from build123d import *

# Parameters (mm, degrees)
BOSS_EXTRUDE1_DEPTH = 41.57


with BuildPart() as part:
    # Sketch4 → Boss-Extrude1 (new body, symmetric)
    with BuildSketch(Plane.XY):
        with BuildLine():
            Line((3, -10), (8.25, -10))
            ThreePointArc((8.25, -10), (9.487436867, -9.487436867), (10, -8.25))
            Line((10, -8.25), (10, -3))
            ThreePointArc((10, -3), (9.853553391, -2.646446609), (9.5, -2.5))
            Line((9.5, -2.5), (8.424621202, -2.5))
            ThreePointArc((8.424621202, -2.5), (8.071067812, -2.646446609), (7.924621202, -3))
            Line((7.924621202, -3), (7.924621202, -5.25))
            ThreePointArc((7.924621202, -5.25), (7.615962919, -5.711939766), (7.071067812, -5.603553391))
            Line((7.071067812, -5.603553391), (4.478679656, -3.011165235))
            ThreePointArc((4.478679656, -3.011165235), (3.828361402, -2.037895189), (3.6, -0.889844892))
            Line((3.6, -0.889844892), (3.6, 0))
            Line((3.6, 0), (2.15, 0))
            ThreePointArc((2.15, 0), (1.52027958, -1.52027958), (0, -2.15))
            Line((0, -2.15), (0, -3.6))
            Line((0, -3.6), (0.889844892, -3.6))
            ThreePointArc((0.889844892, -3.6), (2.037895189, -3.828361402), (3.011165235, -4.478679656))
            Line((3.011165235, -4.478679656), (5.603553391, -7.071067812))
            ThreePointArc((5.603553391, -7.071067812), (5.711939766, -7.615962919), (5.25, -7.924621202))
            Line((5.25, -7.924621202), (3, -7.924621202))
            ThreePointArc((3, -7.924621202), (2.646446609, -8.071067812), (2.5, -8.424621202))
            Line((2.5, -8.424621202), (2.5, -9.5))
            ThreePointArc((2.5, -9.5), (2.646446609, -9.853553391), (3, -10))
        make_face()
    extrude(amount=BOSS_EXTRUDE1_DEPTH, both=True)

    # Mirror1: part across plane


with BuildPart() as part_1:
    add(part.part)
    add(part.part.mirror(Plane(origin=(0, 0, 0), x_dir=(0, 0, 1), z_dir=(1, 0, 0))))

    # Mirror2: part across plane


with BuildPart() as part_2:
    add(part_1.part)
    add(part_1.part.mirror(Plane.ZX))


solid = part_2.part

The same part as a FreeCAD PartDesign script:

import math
import FreeCAD as App
import Part
import Sketcher

V = App.Vector
Q = App.Units.Quantity

doc = App.newDocument("Part")
body = doc.addObject("PartDesign::Body", "Body")

sketch1 = doc.addObject("Sketcher::SketchObject", "Sketch")
body.addObject(sketch1)
sketch1.AttachmentSupport = (doc.XY_Plane, [""])
sketch1.MapMode = "FlatFace"
sketch1.addGeometry(Part.LineSegment(V(3, -10, 0), V(8.25, -10, 0)), False)
sketch1.addGeometry(Part.ArcOfCircle(Part.Circle(V(8.25, -8.25, 0), V(0, 0, 1), 1.75), math.radians(-90), math.radians(0)), False)
sketch1.addGeometry(Part.LineSegment(V(10, -8.25, 0), V(10, -3, 0)), False)
sketch1.addGeometry(Part.ArcOfCircle(Part.Circle(V(9.5, -3, 0), V(0, 0, 1), 0.5), math.radians(0), math.radians(90)), False)
sketch1.addGeometry(Part.LineSegment(V(9.5, -2.5, 0), V(8.42, -2.5, 0)), False)
sketch1.addGeometry(Part.ArcOfCircle(Part.Circle(V(8.42, -3, 0), V(0, 0, 1), 0.5), math.radians(90), math.radians(180)), False)
sketch1.addGeometry(Part.LineSegment(V(7.92, -3, 0), V(7.92, -5.25, 0)), False)
sketch1.addGeometry(Part.ArcOfCircle(Part.Circle(V(7.42, -5.25, 0), V(0, 0, 1), 0.5), math.radians(-135), math.radians(0)), False)
sketch1.addGeometry(Part.LineSegment(V(7.07, -5.6, 0), V(4.48, -3.01, 0)), False)
sketch1.addGeometry(Part.ArcOfCircle(Part.Circle(V(6.6, -0.89, 0), V(0, 0, 1), 3), math.radians(180), math.radians(225)), False)
sketch1.addGeometry(Part.LineSegment(V(3.6, -0.89, 0), V(3.6, 0, 0)), False)
sketch1.addGeometry(Part.LineSegment(V(3.6, 0, 0), V(2.15, 0, 0)), False)
sketch1.addGeometry(Part.ArcOfCircle(Part.Circle(V(0, 0, 0), V(0, 0, 1), 2.15), math.radians(-90), math.radians(0)), False)
sketch1.addGeometry(Part.LineSegment(V(0, -2.15, 0), V(0, -3.6, 0)), False)
sketch1.addGeometry(Part.LineSegment(V(0, -3.6, 0), V(0.89, -3.6, 0)), False)
sketch1.addGeometry(Part.ArcOfCircle(Part.Circle(V(0.89, -6.6, 0), V(0, 0, 1), 3), math.radians(45), math.radians(90)), False)
sketch1.addGeometry(Part.LineSegment(V(3.01, -4.48, 0), V(5.6, -7.07, 0)), False)
sketch1.addGeometry(Part.ArcOfCircle(Part.Circle(V(5.25, -7.42, 0), V(0, 0, 1), 0.5), math.radians(-90), math.radians(45)), False)
sketch1.addGeometry(Part.LineSegment(V(5.25, -7.92, 0), V(3, -7.92, 0)), False)
sketch1.addGeometry(Part.ArcOfCircle(Part.Circle(V(3, -8.42, 0), V(0, 0, 1), 0.5), math.radians(90), math.radians(180)), False)
sketch1.addGeometry(Part.LineSegment(V(2.5, -8.42, 0), V(2.5, -9.5, 0)), False)
sketch1.addGeometry(Part.ArcOfCircle(Part.Circle(V(3, -9.5, 0), V(0, 0, 1), 0.5), math.radians(180), math.radians(270)), False)
sketch1.addConstraint(Sketcher.Constraint("Tangent", 0, 2, 1, 1))
sketch1.addConstraint(Sketcher.Constraint("Tangent", 1, 2, 2, 1))
sketch1.addConstraint(Sketcher.Constraint("Tangent", 2, 2, 3, 1))
sketch1.addConstraint(Sketcher.Constraint("Tangent", 3, 2, 4, 1))
sketch1.addConstraint(Sketcher.Constraint("Tangent", 4, 2, 5, 1))
sketch1.addConstraint(Sketcher.Constraint("Tangent", 5, 2, 6, 1))
sketch1.addConstraint(Sketcher.Constraint("Tangent", 6, 2, 7, 2))
sketch1.addConstraint(Sketcher.Constraint("Tangent", 7, 1, 8, 1))
sketch1.addConstraint(Sketcher.Constraint("Tangent", 8, 2, 9, 2))
sketch1.addConstraint(Sketcher.Constraint("Tangent", 9, 1, 10, 1))
sketch1.addConstraint(Sketcher.Constraint("Coincident", 10, 2, 11, 1))
sketch1.addConstraint(Sketcher.Constraint("Coincident", 11, 2, 12, 2))
sketch1.addConstraint(Sketcher.Constraint("Coincident", 12, 1, 13, 1))
sketch1.addConstraint(Sketcher.Constraint("Coincident", 13, 2, 14, 1))
sketch1.addConstraint(Sketcher.Constraint("Tangent", 14, 2, 15, 2))
sketch1.addConstraint(Sketcher.Constraint("Tangent", 15, 1, 16, 1))
sketch1.addConstraint(Sketcher.Constraint("Tangent", 16, 2, 17, 2))
sketch1.addConstraint(Sketcher.Constraint("Tangent", 17, 1, 18, 1))
sketch1.addConstraint(Sketcher.Constraint("Tangent", 18, 2, 19, 1))
sketch1.addConstraint(Sketcher.Constraint("Tangent", 19, 2, 20, 1))
sketch1.addConstraint(Sketcher.Constraint("Tangent", 20, 2, 21, 1))
sketch1.addConstraint(Sketcher.Constraint("Tangent", 21, 2, 0, 1))
sketch1.addConstraint(Sketcher.Constraint("Horizontal", 0))
sketch1.addConstraint(Sketcher.Constraint("Vertical", 2))
sketch1.addConstraint(Sketcher.Constraint("Horizontal", 4))
sketch1.addConstraint(Sketcher.Constraint("Vertical", 6))
sketch1.addConstraint(Sketcher.Constraint("Vertical", 10))
sketch1.addConstraint(Sketcher.Constraint("Horizontal", 11))
sketch1.addConstraint(Sketcher.Constraint("Vertical", 13))
sketch1.addConstraint(Sketcher.Constraint("Horizontal", 14))
sketch1.addConstraint(Sketcher.Constraint("Horizontal", 18))
sketch1.addConstraint(Sketcher.Constraint("Vertical", 20))
sketch1.addConstraint(Sketcher.Constraint("Coincident", 12, 3, -1, 1))
sketch1.addConstraint(Sketcher.Constraint("Equal", 3, 5))
sketch1.addConstraint(Sketcher.Constraint("Equal", 5, 7))
sketch1.addConstraint(Sketcher.Constraint("Equal", 9, 15))
sketch1.addConstraint(Sketcher.Constraint("Equal", 7, 17))
sketch1.addConstraint(Sketcher.Constraint("Equal", 17, 19))
sketch1.addConstraint(Sketcher.Constraint("Equal", 19, 21))
sketch1.addConstraint(Sketcher.Constraint("PointOnObject", 10, 2, -1))
sketch1.addConstraint(Sketcher.Constraint("PointOnObject", 12, 1, -2))
sketch1.addConstraint(Sketcher.Constraint("Parallel", 8, 16))
sketch1.addConstraint(Sketcher.Constraint("Equal", 0, 2))
sketch1.addConstraint(Sketcher.Constraint("Equal", 18, 6))
sketch1.addConstraint(Sketcher.Constraint("Equal", 14, 10))
sketch1.addConstraint(Sketcher.Constraint("Equal", 11, 13))
sketch1.addConstraint(Sketcher.Constraint("Equal", 4, 20))
sketch1.addConstraint(Sketcher.Constraint("Equal", 8, 16))
sketch1.addConstraint(Sketcher.Constraint("Radius", 9, Q("3 mm")))
sketch1.addConstraint(Sketcher.Constraint("Radius", 3, Q("0.5 mm")))
sketch1.addConstraint(Sketcher.Constraint("Radius", 1, Q("1.75 mm")))
sketch1.addConstraint(Sketcher.Constraint("Radius", 12, Q("2.15 mm")))
sketch1.addConstraint(Sketcher.Constraint("DistanceY", 3, 3, -1, 1, Q("3 mm")))
sketch1.addConstraint(Sketcher.Constraint("DistanceY", 0, 2, -1, 1, Q("10 mm")))
sketch1.addConstraint(Sketcher.Constraint("DistanceY", 1, 3, 7, 3, Q("3 mm")))
sketch1.addConstraint(Sketcher.Constraint("DistanceX", 11, 2, 11, 1, Q("1.45 mm")))
sketch1.addConstraint(Sketcher.Constraint("DistanceX", 4, 2, 4, 1, Q("1.075379 mm")))
pad1 = doc.addObject("PartDesign::Pad", "Pad")
body.addObject(pad1)
pad1.Profile = sketch1
pad1.Length = 83.14
pad1.Midplane = True
body2 = doc.addObject("PartDesign::Body", "Body001")
doc.recompute()

body2.BaseFeature = body
doc.recompute()

mirroring = doc.addObject("Part::Mirroring", "Mirroring")
mirroring.Source = body
mirroring.Base = V(0, 0, 0)
mirroring.Normal = V(1, 0, 0)
body3 = doc.addObject("PartDesign::Body", "Body002")
body3.BaseFeature = mirroring
boolean = doc.addObject("PartDesign::Boolean", "Boolean")
body2.addObject(boolean)
boolean.Type = "Fuse"
boolean.addObjects([body3])
doc.recompute()
body4 = doc.addObject("PartDesign::Body", "Body003")
doc.recompute()

body4.BaseFeature = body2
doc.recompute()

mirroring2 = doc.addObject("Part::Mirroring", "Mirroring001")
mirroring2.Source = body2
mirroring2.Base = V(0, 0, 0)
mirroring2.Normal = V(0, 1, 0)
body5 = doc.addObject("PartDesign::Body", "Body004")
body5.BaseFeature = mirroring2
boolean2 = doc.addObject("PartDesign::Boolean", "Boolean001")
body4.addObject(boolean2)
boolean2.Type = "Fuse"
boolean2.addObjects([body5])
doc.recompute()
mirroring.Visibility = False
mirroring2.Visibility = False

doc.recompute()
